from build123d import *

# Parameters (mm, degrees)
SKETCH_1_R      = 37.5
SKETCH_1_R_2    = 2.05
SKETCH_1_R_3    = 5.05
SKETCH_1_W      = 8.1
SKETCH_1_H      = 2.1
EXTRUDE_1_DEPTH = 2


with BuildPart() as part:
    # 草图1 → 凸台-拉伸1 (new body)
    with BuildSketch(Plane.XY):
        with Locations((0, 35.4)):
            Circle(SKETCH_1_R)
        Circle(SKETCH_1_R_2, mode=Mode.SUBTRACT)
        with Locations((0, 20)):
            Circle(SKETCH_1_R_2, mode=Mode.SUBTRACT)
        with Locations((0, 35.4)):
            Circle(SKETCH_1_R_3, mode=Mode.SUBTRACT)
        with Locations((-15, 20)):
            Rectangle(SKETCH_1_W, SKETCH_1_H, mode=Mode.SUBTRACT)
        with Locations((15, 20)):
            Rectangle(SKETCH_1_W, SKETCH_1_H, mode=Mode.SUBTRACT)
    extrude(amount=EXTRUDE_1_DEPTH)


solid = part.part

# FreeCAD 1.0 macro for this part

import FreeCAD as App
import Part
import Sketcher

V = App.Vector
Q = App.Units.Quantity

doc = App.newDocument("Part")
params = doc.addObject("Spreadsheet::Sheet", "Params")
for row, (alias, value) in enumerate([
    ("sketch1_diameter", "75 mm"),
    ("sketch1_diameter2", "4.1 mm"),
    ("sketch1_diameter3", "10.1 mm"),
    ("sketch1_width", "8.1 mm"),
    ("sketch1_height", "2.1 mm"),
    ("pad1_length", "2 mm"),
], start=1):
    params.set(f"A{row}", alias)
    params.set(f"B{row}", "=" + value)
    params.setAlias(f"B{row}", alias)

body = doc.addObject("PartDesign::Body", "Body")

# Sketch on XY plane
sketch1 = body.newObject("Sketcher::SketchObject", "Sketch")
sketch1.AttachmentSupport = (doc.getObject("XY_Plane"), [""])
sketch1.MapMode = "FlatFace"
sketch1.addGeometry(Part.Circle(V(0, 35.4, 0), V(0, 0, 1), 37.5), False)
sketch1.addGeometry(Part.Circle(V(0, 0, 0), V(0, 0, 1), 2), False)
sketch1.addGeometry(Part.LineSegment(V(-10.9, 18.9, 0), V(-19.1, 18.9, 0)), False)
sketch1.addGeometry(Part.LineSegment(V(-19.1, 18.9, 0), V(-19.1, 21.1, 0)), False)
sketch1.addGeometry(Part.LineSegment(V(-19.1, 21.1, 0), V(-10.9, 21.1, 0)), False)
sketch1.addGeometry(Part.LineSegment(V(-10.9, 21.1, 0), V(-10.9, 18.9, 0)), False)
sketch1.addGeometry(Part.Circle(V(0, 20, 0), V(0, 0, 1), 2), False)
sketch1.addGeometry(Part.LineSegment(V(19.1, 18.9, 0), V(10.9, 18.9, 0)), False)
sketch1.addGeometry(Part.LineSegment(V(10.9, 18.9, 0), V(10.9, 21.1, 0)), False)
sketch1.addGeometry(Part.LineSegment(V(10.9, 21.1, 0), V(19.1, 21.1, 0)), False)
sketch1.addGeometry(Part.LineSegment(V(19.1, 21.1, 0), V(19.1, 18.9, 0)), False)
sketch1.addGeometry(Part.Circle(V(0, 35.4, 0), V(0, 0, 1), 5), False)
sketch1.addConstraint(Sketcher.Constraint("Coincident", 2, 2, 3, 1))
sketch1.addConstraint(Sketcher.Constraint("Coincident", 3, 2, 4, 1))
sketch1.addConstraint(Sketcher.Constraint("Coincident", 4, 2, 5, 1))
sketch1.addConstraint(Sketcher.Constraint("Coincident", 5, 2, 2, 1))
sketch1.addConstraint(Sketcher.Constraint("Coincident", 7, 2, 8, 1))
sketch1.addConstraint(Sketcher.Constraint("Coincident", 8, 2, 9, 1))
sketch1.addConstraint(Sketcher.Constraint("Coincident", 9, 2, 10, 1))
sketch1.addConstraint(Sketcher.Constraint("Coincident", 10, 2, 7, 1))
sketch1.addConstraint(Sketcher.Constraint("Horizontal", 2))
sketch1.addConstraint(Sketcher.Constraint("Vertical", 3))
sketch1.addConstraint(Sketcher.Constraint("Horizontal", 4))
sketch1.addConstraint(Sketcher.Constraint("Vertical", 5))
sketch1.addConstraint(Sketcher.Constraint("Horizontal", 7))
sketch1.addConstraint(Sketcher.Constraint("Vertical", 8))
sketch1.addConstraint(Sketcher.Constraint("Horizontal", 9))
sketch1.addConstraint(Sketcher.Constraint("Vertical", 10))
sketch1.addConstraint(Sketcher.Constraint("Coincident", 1, 3, -1, 1))
sketch1.addConstraint(Sketcher.Constraint("Coincident", 11, 3, 0, 3))
sketch1.addConstraint(Sketcher.Constraint("Equal", 1, 6))
sketch1.addConstraint(Sketcher.Constraint("Symmetric", 5, 2, 7, 2, -2))
sketch1.addConstraint(Sketcher.Constraint("Symmetric", 3, 2, 9, 2, -2))
sketch1.addConstraint(Sketcher.Constraint("PointOnObject", 0, 3, -2))
sketch1.addConstraint(Sketcher.Constraint("PointOnObject", 6, 3, -2))
sketch1.addConstraint(Sketcher.Constraint("Diameter", 0, Q("75 mm")))
sketch1.addConstraint(Sketcher.Constraint("Diameter", 1, Q("4.1 mm")))
sketch1.addConstraint(Sketcher.Constraint("Diameter", 11, Q("10.1 mm")))
sketch1.addConstraint(Sketcher.Constraint("DistanceX", 2, 2, 2, 1, Q("8.1 mm")))
sketch1.addConstraint(Sketcher.Constraint("DistanceY", 3, 1, 3, 2, Q("2.1 mm")))
sketch1.addConstraint(Sketcher.Constraint("DistanceY", -1, 1, 6, 3, Q("20 mm")))
sketch1.addConstraint(Sketcher.Constraint("DistanceY", -1, 1, 0, 3, Q("35.4 mm")))
sketch1.addConstraint(Sketcher.Constraint("DistanceX", 5, 2, 7, 2, Q("21.9 mm")))
sketch1.addConstraint(Sketcher.Constraint("DistanceY", -1, 1, 2, 2, Q("18.95 mm")))
sketch1.setExpression("Constraints[23]", "Params.sketch1_diameter")
sketch1.setExpression("Constraints[24]", "Params.sketch1_diameter2")
sketch1.setExpression("Constraints[25]", "Params.sketch1_diameter3")
sketch1.setExpression("Constraints[26]", "Params.sketch1_width")
sketch1.setExpression("Constraints[27]", "Params.sketch1_height")
pad1 = body.newObject("PartDesign::Pad", "Pad")
pad1.Profile = sketch1
pad1.setExpression("Length", "Params.pad1_length")

doc.recompute()
